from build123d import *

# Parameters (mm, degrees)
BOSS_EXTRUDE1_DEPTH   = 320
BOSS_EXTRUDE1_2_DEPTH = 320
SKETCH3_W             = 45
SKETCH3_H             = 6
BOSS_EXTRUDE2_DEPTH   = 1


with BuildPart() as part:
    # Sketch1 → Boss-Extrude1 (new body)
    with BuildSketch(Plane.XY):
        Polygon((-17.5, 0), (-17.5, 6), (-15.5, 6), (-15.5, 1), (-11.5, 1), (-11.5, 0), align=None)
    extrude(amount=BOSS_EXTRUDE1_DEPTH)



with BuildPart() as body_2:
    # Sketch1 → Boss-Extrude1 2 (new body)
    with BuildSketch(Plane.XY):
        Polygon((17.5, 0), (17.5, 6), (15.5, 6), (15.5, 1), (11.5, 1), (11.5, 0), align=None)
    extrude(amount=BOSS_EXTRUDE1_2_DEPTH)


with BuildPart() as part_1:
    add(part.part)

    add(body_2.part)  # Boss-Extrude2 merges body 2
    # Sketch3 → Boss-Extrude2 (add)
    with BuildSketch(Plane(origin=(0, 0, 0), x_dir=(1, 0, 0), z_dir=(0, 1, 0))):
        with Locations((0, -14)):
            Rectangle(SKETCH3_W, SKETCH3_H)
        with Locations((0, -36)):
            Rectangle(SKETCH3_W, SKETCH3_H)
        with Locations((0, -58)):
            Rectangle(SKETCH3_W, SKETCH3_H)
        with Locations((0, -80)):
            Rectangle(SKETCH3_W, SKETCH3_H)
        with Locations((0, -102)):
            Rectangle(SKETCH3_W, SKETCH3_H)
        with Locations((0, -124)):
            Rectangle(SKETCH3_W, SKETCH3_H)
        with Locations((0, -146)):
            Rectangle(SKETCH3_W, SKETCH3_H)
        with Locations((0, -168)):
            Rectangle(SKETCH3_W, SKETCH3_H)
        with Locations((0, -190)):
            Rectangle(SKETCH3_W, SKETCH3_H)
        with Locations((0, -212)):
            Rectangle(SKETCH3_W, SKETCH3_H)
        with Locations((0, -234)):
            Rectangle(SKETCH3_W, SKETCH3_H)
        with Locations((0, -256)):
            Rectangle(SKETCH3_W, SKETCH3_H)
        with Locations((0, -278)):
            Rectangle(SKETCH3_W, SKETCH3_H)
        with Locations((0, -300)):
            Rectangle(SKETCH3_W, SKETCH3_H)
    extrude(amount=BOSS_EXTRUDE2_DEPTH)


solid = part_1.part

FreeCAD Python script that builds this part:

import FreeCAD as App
import Part
import Sketcher

doc = App.newDocument("Part")
params = doc.addObject("Spreadsheet::Sheet", "Params")
for row, (alias, value) in enumerate([
    ("sketch1_width", "6 mm"),
    ("sketch1_width2", "4 mm"),
    ("sketch1_height", "1 mm"),
    ("pad1_length", "320 mm"),
    ("sketch2_width", "2 mm"),
    ("sketch2_width2", "4 mm"),
    ("sketch2_height", "5 mm"),
    ("pad2_length", "320 mm"),
    ("sketch3_width", "45 mm"),
    ("sketch3_height", "6 mm"),
    ("pad3_length", "1 mm"),
], start=1):
    params.set(f"A{row}", alias)
    params.set(f"B{row}", "=" + value)
    params.setAlias(f"B{row}", alias)

body = doc.addObject("PartDesign::Body", "Body")

# Sketch on XY plane
sketch1 = body.newObject("Sketcher::SketchObject", "Sketch")
sketch1.AttachmentSupport = (doc.getObject("XY_Plane"), [""])
sketch1.MapMode = "FlatFace"
sketch1.addGeometry([
    Part.LineSegment(App.Vector(-17.5, 6, 0), App.Vector(-17.5, 0, 0)),  # 0
    Part.LineSegment(App.Vector(-17.5, 0, 0), App.Vector(-11.5, 0, 0)),  # 1
    Part.LineSegment(App.Vector(-11.5, 0, 0), App.Vector(-11.5, 1, 0)),  # 2
    Part.LineSegment(App.Vector(-11.5, 1, 0), App.Vector(-15.5, 1, 0)),  # 3
    Part.LineSegment(App.Vector(-15.5, 1, 0), App.Vector(-15.5, 6, 0)),  # 4
    Part.LineSegment(App.Vector(-15.5, 6, 0), App.Vector(-17.5, 6, 0)),  # 5
], False)
sketch1.addConstraint([
    Sketcher.Constraint("Coincident", 0, 2, 1, 1),
    Sketcher.Constraint("Coincident", 1, 2, 2, 1),
    Sketcher.Constraint("Coincident", 2, 2, 3, 1),
    Sketcher.Constraint("Coincident", 3, 2, 4, 1),
    Sketcher.Constraint("Coincident", 4, 2, 5, 1),
    Sketcher.Constraint("Coincident", 5, 2, 0, 1),
    Sketcher.Constraint("Vertical", 0),
    Sketcher.Constraint("Horizontal", 1),
    Sketcher.Constraint("Vertical", 2),
    Sketcher.Constraint("Horizontal", 3),
    Sketcher.Constraint("Vertical", 4),
    Sketcher.Constraint("Horizontal", 5),
    Sketcher.Constraint("PointOnObject", 0, 2, -1),
    Sketcher.Constraint("Equal", 1, 0),
    Sketcher.Constraint("DistanceX", 1, 1, 1, 2, 6.0),
    Sketcher.Constraint("DistanceX", 3, 2, 3, 1, 4.0),
    Sketcher.Constraint("DistanceY", 2, 1, 2, 2, 1.0),
    Sketcher.Constraint("DistanceX", 0, 2, -1, 1, 17.5),
])
sketch1.setExpression("Constraints[14]", "Params.sketch1_width")
sketch1.setExpression("Constraints[15]", "Params.sketch1_width2")
sketch1.setExpression("Constraints[16]", "Params.sketch1_height")
pad1 = body.newObject("PartDesign::Pad", "Pad")
pad1.Profile = sketch1
pad1.setExpression("Length", "Params.pad1_length")
body2 = doc.addObject("PartDesign::Body", "Body001")

# Sketch on XY plane
sketch2 = body2.newObject("Sketcher::SketchObject", "Sketch001")
sketch2.AttachmentSupport = (doc.getObject("XY_Plane001"), [""])
sketch2.MapMode = "FlatFace"
sketch2.addGeometry([
    Part.LineSegment(App.Vector(17.5, 0, 0), App.Vector(17.5, 6, 0)),  # 0
    Part.LineSegment(App.Vector(17.5, 6, 0), App.Vector(15.5, 6, 0)),  # 1
    Part.LineSegment(App.Vector(15.5, 6, 0), App.Vector(15.5, 1, 0)),  # 2
    Part.LineSegment(App.Vector(15.5, 1, 0), App.Vector(11.5, 1, 0)),  # 3
    Part.LineSegment(App.Vector(11.5, 1, 0), App.Vector(11.5, 0, 0)),  # 4
    Part.LineSegment(App.Vector(11.5, 0, 0), App.Vector(17.5, 0, 0)),  # 5
], False)
sketch2.addConstraint([
    Sketcher.Constraint("Coincident", 0, 2, 1, 1),
    Sketcher.Constraint("Coincident", 1, 2, 2, 1),
    Sketcher.Constraint("Coincident", 2, 2, 3, 1),
    Sketcher.Constraint("Coincident", 3, 2, 4, 1),
    Sketcher.Constraint("Coincident", 4, 2, 5, 1),
    Sketcher.Constraint("Coincident", 5, 2, 0, 1),
    Sketcher.Constraint("Vertical", 0),
    Sketcher.Constraint("Horizontal", 1),
    Sketcher.Constraint("Vertical", 2),
    Sketcher.Constraint("Horizontal", 3),
    Sketcher.Constraint("Vertical", 4),
    Sketcher.Constraint("Horizontal", 5),
    Sketcher.Constraint("PointOnObject", 4, 2, -1),
    Sketcher.Constraint("Equal", 5, 0),
    Sketcher.Constraint("DistanceX", 1, 2, 1, 1, 2.0),
    Sketcher.Constraint("DistanceX", 3, 2, 3, 1, 4.0),
    Sketcher.Constraint("DistanceY", 2, 2, 2, 1, 5.0),
    Sketcher.Constraint("DistanceX", -1, 1, 0, 2, 17.5),
])
sketch2.setExpression("Constraints[14]", "Params.sketch2_width")
sketch2.setExpression("Constraints[15]", "Params.sketch2_width2")
sketch2.setExpression("Constraints[16]", "Params.sketch2_height")
pad2 = body2.newObject("PartDesign::Pad", "Pad001")
pad2.Profile = sketch2
pad2.setExpression("Length", "Params.pad2_length")
body.AllowCompound = True
doc.recompute()

boolean = body.newObject("PartDesign::Boolean", "Boolean")
boolean.Type = "Fuse"
boolean.addObjects([body2])

# Sketch on XZ plane
sketch3 = body.newObject("Sketcher::SketchObject", "Sketch002")
sketch3.AttachmentSupport = (doc.getObject("XZ_Plane"), [""])
sketch3.MapMode = "FlatFace"
sketch3.addGeometry([
    Part.LineSegment(App.Vector(-22, 11, 0), App.Vector(-22, 17, 0)),  # 0
    Part.LineSegment(App.Vector(-22, 17, 0), App.Vector(22, 17, 0)),  # 1
    Part.LineSegment(App.Vector(22, 17, 0), App.Vector(22, 11, 0)),  # 2
    Part.LineSegment(App.Vector(22, 11, 0), App.Vector(-22, 11, 0)),  # 3
    Part.LineSegment(App.Vector(-22, 33, 0), App.Vector(-22, 39, 0)),  # 4
    Part.LineSegment(App.Vector(-22, 39, 0), App.Vector(22, 39, 0)),  # 5
    Part.LineSegment(App.Vector(22, 39, 0), App.Vector(22, 33, 0)),  # 6
    Part.LineSegment(App.Vector(22, 33, 0), App.Vector(-22, 33, 0)),  # 7
    Part.LineSegment(App.Vector(-22, 55, 0), App.Vector(-22, 61, 0)),  # 8
    Part.LineSegment(App.Vector(-22, 61, 0), App.Vector(22, 61, 0)),  # 9
    Part.LineSegment(App.Vector(22, 61, 0), App.Vector(22, 55, 0)),  # 10
    Part.LineSegment(App.Vector(22, 55, 0), App.Vector(-22, 55, 0)),  # 11
    Part.LineSegment(App.Vector(-22, 77, 0), App.Vector(-22, 83, 0)),  # 12
    Part.LineSegment(App.Vector(-22, 83, 0), App.Vector(22, 83, 0)),  # 13
    Part.LineSegment(App.Vector(22, 83, 0), App.Vector(22, 77, 0)),  # 14
    Part.LineSegment(App.Vector(22, 77, 0), App.Vector(-22, 77, 0)),  # 15
    Part.LineSegment(App.Vector(-22, 99, 0), App.Vector(-22, 105, 0)),  # 16
    Part.LineSegment(App.Vector(-22, 105, 0), App.Vector(22, 105, 0)),  # 17
    Part.LineSegment(App.Vector(22, 105, 0), App.Vector(22, 99, 0)),  # 18
    Part.LineSegment(App.Vector(22, 99, 0), App.Vector(-22, 99, 0)),  # 19
    Part.LineSegment(App.Vector(-22, 121, 0), App.Vector(-22, 127, 0)),  # 20
    Part.LineSegment(App.Vector(-22, 127, 0), App.Vector(22, 127, 0)),  # 21
    Part.LineSegment(App.Vector(22, 127, 0), App.Vector(22, 121, 0)),  # 22
    Part.LineSegment(App.Vector(22, 121, 0), App.Vector(-22, 121, 0)),  # 23
    Part.LineSegment(App.Vector(-22, 143, 0), App.Vector(-22, 149, 0)),  # 24
    Part.LineSegment(App.Vector(-22, 149, 0), App.Vector(22, 149, 0)),  # 25
    Part.LineSegment(App.Vector(22, 149, 0), App.Vector(22, 143, 0)),  # 26
    Part.LineSegment(App.Vector(22, 143, 0), App.Vector(-22, 143, 0)),  # 27
    Part.LineSegment(App.Vector(-22, 165, 0), App.Vector(-22, 171, 0)),  # 28
    Part.LineSegment(App.Vector(-22, 171, 0), App.Vector(22, 171, 0)),  # 29
    Part.LineSegment(App.Vector(22, 171, 0), App.Vector(22, 165, 0)),  # 30
    Part.LineSegment(App.Vector(22, 165, 0), App.Vector(-22, 165, 0)),  # 31
    Part.LineSegment(App.Vector(-22, 187, 0), App.Vector(-22, 193, 0)),  # 32
    Part.LineSegment(App.Vector(-22, 193, 0), App.Vector(22, 193, 0)),  # 33
    Part.LineSegment(App.Vector(22, 193, 0), App.Vector(22, 187, 0)),  # 34
    Part.LineSegment(App.Vector(22, 187, 0), App.Vector(-22, 187, 0)),  # 35
    Part.LineSegment(App.Vector(-22, 209, 0), App.Vector(-22, 215, 0)),  # 36
    Part.LineSegment(App.Vector(-22, 215, 0), App.Vector(22, 215, 0)),  # 37
    Part.LineSegment(App.Vector(22, 215, 0), App.Vector(22, 209, 0)),  # 38
    Part.LineSegment(App.Vector(22, 209, 0), App.Vector(-22, 209, 0)),  # 39
    Part.LineSegment(App.Vector(-22, 231, 0), App.Vector(-22, 237, 0)),  # 40
    Part.LineSegment(App.Vector(-22, 237, 0), App.Vector(22, 237, 0)),  # 41
    Part.LineSegment(App.Vector(22, 237, 0), App.Vector(22, 231, 0)),  # 42
    Part.LineSegment(App.Vector(22, 231, 0), App.Vector(-22, 231, 0)),  # 43
    Part.LineSegment(App.Vector(-22, 253, 0), App.Vector(-22, 259, 0)),  # 44
    Part.LineSegment(App.Vector(-22, 259, 0), App.Vector(22, 259, 0)),  # 45
    Part.LineSegment(App.Vector(22, 259, 0), App.Vector(22, 253, 0)),  # 46
    Part.LineSegment(App.Vector(22, 253, 0), App.Vector(-22, 253, 0)),  # 47
    Part.LineSegment(App.Vector(-22, 275, 0), App.Vector(-22, 281, 0)),  # 48
    Part.LineSegment(App.Vector(-22, 281, 0), App.Vector(22, 281, 0)),  # 49
    Part.LineSegment(App.Vector(22, 281, 0), App.Vector(22, 275, 0)),  # 50
    Part.LineSegment(App.Vector(22, 275, 0), App.Vector(-22, 275, 0)),  # 51
    Part.LineSegment(App.Vector(-22, 297, 0), App.Vector(-22, 303, 0)),  # 52
    Part.LineSegment(App.Vector(-22, 303, 0), App.Vector(22, 303, 0)),  # 53
    Part.LineSegment(App.Vector(22, 303, 0), App.Vector(22, 297, 0)),  # 54
    Part.LineSegment(App.Vector(22, 297, 0), App.Vector(-22, 297, 0)),  # 55
], False)
sketch3.addConstraint([
    Sketcher.Constraint("Coincident", 0, 2, 1, 1),
    Sketcher.Constraint("Coincident", 1, 2, 2, 1),
    Sketcher.Constraint("Coincident", 2, 2, 3, 1),
    Sketcher.Constraint("Coincident", 3, 2, 0, 1),
    Sketcher.Constraint("Coincident", 4, 2, 5, 1),
    Sketcher.Constraint("Coincident", 5, 2, 6, 1),
    Sketcher.Constraint("Coincident", 6, 2, 7, 1),
    Sketcher.Constraint("Coincident", 7, 2, 4, 1),
    Sketcher.Constraint("Coincident", 8, 2, 9, 1),
    Sketcher.Constraint("Coincident", 9, 2, 10, 1),
    Sketcher.Constraint("Coincident", 10, 2, 11, 1),
    Sketcher.Constraint("Coincident", 11, 2, 8, 1),
    Sketcher.Constraint("Coincident", 12, 2, 13, 1),
    Sketcher.Constraint("Coincident", 13, 2, 14, 1),
    Sketcher.Constraint("Coincident", 14, 2, 15, 1),
    Sketcher.Constraint("Coincident", 15, 2, 12, 1),
    Sketcher.Constraint("Coincident", 16, 2, 17, 1),
    Sketcher.Constraint("Coincident", 17, 2, 18, 1),
    Sketcher.Constraint("Coincident", 18, 2, 19, 1),
    Sketcher.Constraint("Coincident", 19, 2, 16, 1),
    Sketcher.Constraint("Coincident", 20, 2, 21, 1),
    Sketcher.Constraint("Coincident", 21, 2, 22, 1),
    Sketcher.Constraint("Coincident", 22, 2, 23, 1),
    Sketcher.Constraint("Coincident", 23, 2, 20, 1),
    Sketcher.Constraint("Coincident", 24, 2, 25, 1),
    Sketcher.Constraint("Coincident", 25, 2, 26, 1),
    Sketcher.Constraint("Coincident", 26, 2, 27, 1),
    Sketcher.Constraint("Coincident", 27, 2, 24, 1),
    Sketcher.Constraint("Coincident", 28, 2, 29, 1),
    Sketcher.Constraint("Coincident", 29, 2, 30, 1),
    Sketcher.Constraint("Coincident", 30, 2, 31, 1),
    Sketcher.Constraint("Coincident", 31, 2, 28, 1),
    Sketcher.Constraint("Coincident", 32, 2, 33, 1),
    Sketcher.Constraint("Coincident", 33, 2, 34, 1),
    Sketcher.Constraint("Coincident", 34, 2, 35, 1),
    Sketcher.Constraint("Coincident", 35, 2, 32, 1),
    Sketcher.Constraint("Coincident", 36, 2, 37, 1),
    Sketcher.Constraint("Coincident", 37, 2, 38, 1),
    Sketcher.Constraint("Coincident", 38, 2, 39, 1),
    Sketcher.Constraint("Coincident", 39, 2, 36, 1),
    Sketcher.Constraint("Coincident", 40, 2, 41, 1),
    Sketcher.Constraint("Coincident", 41, 2, 42, 1),
    Sketcher.Constraint("Coincident", 42, 2, 43, 1),
    Sketcher.Constraint("Coincident", 43, 2, 40, 1),
    Sketcher.Constraint("Coincident", 44, 2, 45, 1),
    Sketcher.Constraint("Coincident", 45, 2, 46, 1),
    Sketcher.Constraint("Coincident", 46, 2, 47, 1),
    Sketcher.Constraint("Coincident", 47, 2, 44, 1),
    Sketcher.Constraint("Coincident", 48, 2, 49, 1),
    Sketcher.Constraint("Coincident", 49, 2, 50, 1),
    Sketcher.Constraint("Coincident", 50, 2, 51, 1),
    Sketcher.Constraint("Coincident", 51, 2, 48, 1),
    Sketcher.Constraint("Coincident", 52, 2, 53, 1),
    Sketcher.Constraint("Coincident", 53, 2, 54, 1),
    Sketcher.Constraint("Coincident", 54, 2, 55, 1),
    Sketcher.Constraint("Coincident", 55, 2, 52, 1),
    Sketcher.Constraint("Vertical", 0),
    Sketcher.Constraint("Horizontal", 1),
    Sketcher.Constraint("Vertical", 2),
    Sketcher.Constraint("Horizontal", 3),
    Sketcher.Constraint("Vertical", 4),
    Sketcher.Constraint("Horizontal", 5),
    Sketcher.Constraint("Vertical", 6),
    Sketcher.Constraint("Horizontal", 7),
    Sketcher.Constraint("Vertical", 8),
    Sketcher.Constraint("Horizontal", 9),
    Sketcher.Constraint("Vertical", 10),
    Sketcher.Constraint("Horizontal", 11),
    Sketcher.Constraint("Vertical", 12),
    Sketcher.Constraint("Horizontal", 13),
    Sketcher.Constraint("Vertical", 14),
    Sketcher.Constraint("Horizontal", 15),
    Sketcher.Constraint("Vertical", 16),
    Sketcher.Constraint("Horizontal", 17),
    Sketcher.Constraint("Vertical", 18),
    Sketcher.Constraint("Horizontal", 19),
    Sketcher.Constraint("Vertical", 20),
    Sketcher.Constraint("Horizontal", 21),
    Sketcher.Constraint("Vertical", 22),
    Sketcher.Constraint("Horizontal", 23),
    Sketcher.Constraint("Vertical", 24),
    Sketcher.Constraint("Horizontal", 25),
    Sketcher.Constraint("Vertical", 26),
    Sketcher.Constraint("Horizontal", 27),
    Sketcher.Constraint("Vertical", 28),
    Sketcher.Constraint("Horizontal", 29),
    Sketcher.Constraint("Vertical", 30),
    Sketcher.Constraint("Horizontal", 31),
    Sketcher.Constraint("Vertical", 32),
    Sketcher.Constraint("Horizontal", 33),
    Sketcher.Constraint("Vertical", 34),
    Sketcher.Constraint("Horizontal", 35),
    Sketcher.Constraint("Vertical", 36),
    Sketcher.Constraint("Horizontal", 37),
    Sketcher.Constraint("Vertical", 38),
    Sketcher.Constraint("Horizontal", 39),
    Sketcher.Constraint("Vertical", 40),
    Sketcher.Constraint("Horizontal", 41),
    Sketcher.Constraint("Vertical", 42),
    Sketcher.Constraint("Horizontal", 43),
    Sketcher.Constraint("Vertical", 44),
    Sketcher.Constraint("Horizontal", 45),
    Sketcher.Constraint("Vertical", 46),
    Sketcher.Constraint("Horizontal", 47),
    Sketcher.Constraint("Vertical", 48),
    Sketcher.Constraint("Horizontal", 49),
    Sketcher.Constraint("Vertical", 50),
    Sketcher.Constraint("Horizontal", 51),
    Sketcher.Constraint("Vertical", 52),
    Sketcher.Constraint("Horizontal", 53),
    Sketcher.Constraint("Vertical", 54),
    Sketcher.Constraint("Horizontal", 55),
    Sketcher.Constraint("Vertical", 3, 2, 4, 2),
    Sketcher.Constraint("Vertical", 2, 2, 5, 2),
    Sketcher.Constraint("Vertical", 7, 2, 8, 2),
    Sketcher.Constraint("Vertical", 6, 2, 9, 2),
    Sketcher.Constraint("Vertical", 11, 2, 12, 2),
    Sketcher.Constraint("Vertical", 10, 2, 13, 2),
    Sketcher.Constraint("Vertical", 15, 2, 16, 2),
    Sketcher.Constraint("Vertical", 14, 2, 17, 2),
    Sketcher.Constraint("Vertical", 19, 2, 20, 2),
    Sketcher.Constraint("Vertical", 18, 2, 21, 2),
    Sketcher.Constraint("Vertical", 23, 2, 24, 2),
    Sketcher.Constraint("Vertical", 22, 2, 25, 2),
    Sketcher.Constraint("Vertical", 27, 2, 28, 2),
    Sketcher.Constraint("Vertical", 26, 2, 29, 2),
    Sketcher.Constraint("Vertical", 31, 2, 32, 2),
    Sketcher.Constraint("Vertical", 30, 2, 33, 2),
    Sketcher.Constraint("Vertical", 35, 2, 36, 2),
    Sketcher.Constraint("Vertical", 34, 2, 37, 2),
    Sketcher.Constraint("Vertical", 39, 2, 40, 2),
    Sketcher.Constraint("Vertical", 38, 2, 41, 2),
    Sketcher.Constraint("Vertical", 43, 2, 44, 2),
    Sketcher.Constraint("Vertical", 42, 2, 45, 2),
    Sketcher.Constraint("Vertical", 47, 2, 48, 2),
    Sketcher.Constraint("Vertical", 46, 2, 49, 2),
    Sketcher.Constraint("Vertical", 51, 2, 52, 2),
    Sketcher.Constraint("Vertical", 50, 2, 53, 2),
    Sketcher.Constraint("Equal", 2, 4),
    Sketcher.Constraint("Equal", 6, 8),
    Sketcher.Constraint("Equal", 10, 12),
    Sketcher.Constraint("Equal", 14, 16),
    Sketcher.Constraint("Equal", 18, 20),
    Sketcher.Constraint("Equal", 22, 24),
    Sketcher.Constraint("Equal", 26, 28),
    Sketcher.Constraint("Equal", 30, 32),
    Sketcher.Constraint("Equal", 34, 36),
    Sketcher.Constraint("Equal", 38, 40),
    Sketcher.Constraint("Equal", 42, 44),
    Sketcher.Constraint("Equal", 46, 48),
    Sketcher.Constraint("Equal", 50, 52),
    Sketcher.Constraint("DistanceX", 1, 1, 1, 2, 45.0),
    Sketcher.Constraint("DistanceY", 0, 1, 0, 2, 6.0),
    Sketcher.Constraint("DistanceY", -1, 1, 0, 2, 17.0),
    Sketcher.Constraint("DistanceY", -1, 1, 4, 2, 39.0),
    Sketcher.Constraint("DistanceY", -1, 1, 8, 2, 61.0),
    Sketcher.Constraint("DistanceY", -1, 1, 12, 2, 83.0),
    Sketcher.Constraint("DistanceY", -1, 1, 16, 2, 105.0),
    Sketcher.Constraint("DistanceY", -1, 1, 20, 2, 127.0),
    Sketcher.Constraint("DistanceY", -1, 1, 24, 2, 149.0),
    Sketcher.Constraint("DistanceY", -1, 1, 28, 2, 171.0),
    Sketcher.Constraint("DistanceY", -1, 1, 32, 2, 193.0),
    Sketcher.Constraint("DistanceY", -1, 1, 36, 2, 215.0),
    Sketcher.Constraint("DistanceY", -1, 1, 40, 2, 237.0),
    Sketcher.Constraint("DistanceY", -1, 1, 44, 2, 259.0),
    Sketcher.Constraint("DistanceY", -1, 1, 48, 2, 281.0),
    Sketcher.Constraint("DistanceY", -1, 1, 52, 2, 303.0),
    Sketcher.Constraint("DistanceX", 0, 2, -1, 1, 22.5),
])
sketch3.setExpression("Constraints[151]", "Params.sketch3_width")
sketch3.setExpression("Constraints[152]", "Params.sketch3_height")
pad3 = body.newObject("PartDesign::Pad", "Pad002")
pad3.Profile = sketch3
pad3.setExpression("Length", "Params.pad3_length")
pad3.Reversed = True

doc.recompute()
